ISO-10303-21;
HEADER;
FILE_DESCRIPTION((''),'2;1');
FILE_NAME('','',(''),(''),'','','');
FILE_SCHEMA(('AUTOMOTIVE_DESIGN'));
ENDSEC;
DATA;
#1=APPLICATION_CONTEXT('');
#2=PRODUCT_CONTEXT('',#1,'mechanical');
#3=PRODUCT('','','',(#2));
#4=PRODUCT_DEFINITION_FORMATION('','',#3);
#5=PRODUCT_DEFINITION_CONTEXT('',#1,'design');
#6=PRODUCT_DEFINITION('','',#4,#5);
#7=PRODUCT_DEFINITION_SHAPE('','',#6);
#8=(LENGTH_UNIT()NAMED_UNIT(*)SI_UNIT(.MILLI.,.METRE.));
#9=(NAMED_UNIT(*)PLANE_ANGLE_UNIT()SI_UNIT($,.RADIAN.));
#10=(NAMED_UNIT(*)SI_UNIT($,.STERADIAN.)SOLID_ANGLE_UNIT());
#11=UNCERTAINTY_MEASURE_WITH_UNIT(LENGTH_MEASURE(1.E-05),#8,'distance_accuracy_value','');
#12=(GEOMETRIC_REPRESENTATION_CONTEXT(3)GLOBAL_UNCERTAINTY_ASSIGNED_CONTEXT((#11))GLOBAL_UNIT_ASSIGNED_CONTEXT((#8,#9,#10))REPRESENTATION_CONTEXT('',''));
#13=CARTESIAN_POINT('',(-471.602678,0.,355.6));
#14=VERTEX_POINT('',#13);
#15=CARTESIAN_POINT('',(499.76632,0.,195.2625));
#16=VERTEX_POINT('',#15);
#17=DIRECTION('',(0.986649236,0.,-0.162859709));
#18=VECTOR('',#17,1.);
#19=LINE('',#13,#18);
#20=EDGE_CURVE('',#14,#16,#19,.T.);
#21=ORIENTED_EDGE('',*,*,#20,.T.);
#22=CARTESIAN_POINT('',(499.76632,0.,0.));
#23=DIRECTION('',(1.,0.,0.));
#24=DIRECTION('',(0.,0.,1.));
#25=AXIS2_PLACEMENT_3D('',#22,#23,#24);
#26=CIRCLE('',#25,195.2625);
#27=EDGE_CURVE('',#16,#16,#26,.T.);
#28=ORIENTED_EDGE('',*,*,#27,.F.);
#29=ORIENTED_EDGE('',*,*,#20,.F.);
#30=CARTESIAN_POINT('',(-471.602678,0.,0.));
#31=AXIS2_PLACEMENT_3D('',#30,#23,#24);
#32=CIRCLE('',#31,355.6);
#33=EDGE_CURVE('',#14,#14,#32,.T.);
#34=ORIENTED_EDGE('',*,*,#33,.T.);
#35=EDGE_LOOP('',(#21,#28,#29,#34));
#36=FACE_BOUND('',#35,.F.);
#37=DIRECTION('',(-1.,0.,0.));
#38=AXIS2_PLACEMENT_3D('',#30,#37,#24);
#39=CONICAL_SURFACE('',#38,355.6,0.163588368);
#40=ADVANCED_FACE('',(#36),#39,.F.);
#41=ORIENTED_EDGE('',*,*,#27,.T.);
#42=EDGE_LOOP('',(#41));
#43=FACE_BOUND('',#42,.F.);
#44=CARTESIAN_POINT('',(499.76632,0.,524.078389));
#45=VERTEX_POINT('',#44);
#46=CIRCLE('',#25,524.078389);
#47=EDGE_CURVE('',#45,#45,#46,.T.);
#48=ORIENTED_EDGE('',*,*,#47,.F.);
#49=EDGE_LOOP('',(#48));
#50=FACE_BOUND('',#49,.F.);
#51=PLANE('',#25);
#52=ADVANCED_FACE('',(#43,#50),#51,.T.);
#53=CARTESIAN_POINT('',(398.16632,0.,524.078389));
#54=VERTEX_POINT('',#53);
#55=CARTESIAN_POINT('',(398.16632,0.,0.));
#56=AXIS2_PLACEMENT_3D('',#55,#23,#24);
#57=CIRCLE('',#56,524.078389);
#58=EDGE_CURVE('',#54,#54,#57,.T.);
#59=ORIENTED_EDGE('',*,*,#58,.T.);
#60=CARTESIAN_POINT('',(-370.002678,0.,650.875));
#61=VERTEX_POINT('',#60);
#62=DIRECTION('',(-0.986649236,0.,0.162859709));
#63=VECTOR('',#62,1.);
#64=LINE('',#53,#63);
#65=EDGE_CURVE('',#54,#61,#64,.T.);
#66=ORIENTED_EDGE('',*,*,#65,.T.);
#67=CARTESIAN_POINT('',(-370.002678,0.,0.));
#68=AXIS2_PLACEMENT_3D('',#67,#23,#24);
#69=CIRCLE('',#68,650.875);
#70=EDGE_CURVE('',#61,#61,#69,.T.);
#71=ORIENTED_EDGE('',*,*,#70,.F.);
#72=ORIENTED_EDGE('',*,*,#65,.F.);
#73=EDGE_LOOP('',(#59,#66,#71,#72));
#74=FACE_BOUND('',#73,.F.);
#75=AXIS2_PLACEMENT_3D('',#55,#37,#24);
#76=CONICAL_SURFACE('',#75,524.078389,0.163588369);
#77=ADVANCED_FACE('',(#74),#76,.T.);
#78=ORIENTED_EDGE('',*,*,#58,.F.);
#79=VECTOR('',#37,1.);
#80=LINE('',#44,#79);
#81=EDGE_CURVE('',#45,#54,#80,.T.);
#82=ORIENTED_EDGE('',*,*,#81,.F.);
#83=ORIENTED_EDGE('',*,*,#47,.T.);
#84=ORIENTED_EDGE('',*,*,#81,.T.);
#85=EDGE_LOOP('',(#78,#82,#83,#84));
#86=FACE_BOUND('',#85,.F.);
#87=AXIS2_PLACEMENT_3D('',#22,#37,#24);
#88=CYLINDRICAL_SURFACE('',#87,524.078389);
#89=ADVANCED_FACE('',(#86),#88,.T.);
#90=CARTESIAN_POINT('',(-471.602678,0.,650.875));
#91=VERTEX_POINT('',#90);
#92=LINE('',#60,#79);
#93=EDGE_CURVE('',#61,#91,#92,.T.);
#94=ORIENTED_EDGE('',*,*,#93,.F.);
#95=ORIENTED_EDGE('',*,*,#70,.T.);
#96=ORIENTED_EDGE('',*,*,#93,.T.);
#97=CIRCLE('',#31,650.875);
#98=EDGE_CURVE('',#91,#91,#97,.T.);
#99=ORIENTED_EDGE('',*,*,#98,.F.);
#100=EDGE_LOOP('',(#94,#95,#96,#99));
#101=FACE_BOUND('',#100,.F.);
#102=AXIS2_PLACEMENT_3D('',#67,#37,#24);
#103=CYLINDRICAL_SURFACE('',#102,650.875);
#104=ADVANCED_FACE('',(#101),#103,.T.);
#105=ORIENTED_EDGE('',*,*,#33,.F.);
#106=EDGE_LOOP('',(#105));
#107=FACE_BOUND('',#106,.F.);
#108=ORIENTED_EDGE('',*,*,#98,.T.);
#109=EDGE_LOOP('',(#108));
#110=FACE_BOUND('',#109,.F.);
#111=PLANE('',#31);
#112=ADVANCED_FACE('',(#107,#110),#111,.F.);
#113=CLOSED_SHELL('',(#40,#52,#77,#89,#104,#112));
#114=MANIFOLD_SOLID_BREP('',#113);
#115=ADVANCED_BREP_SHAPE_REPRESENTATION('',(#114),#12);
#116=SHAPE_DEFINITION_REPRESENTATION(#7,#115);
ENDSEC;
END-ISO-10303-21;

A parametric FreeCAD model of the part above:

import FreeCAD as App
import Part
import Sketcher
Q = App.Units.Quantity

doc = App.newDocument("Part")
params = doc.addObject("Spreadsheet::Sheet", "Params")
for row, (alias, value) in enumerate([
    ("sketch1_width", "4 in"),
    ("sketch1_height", "11.625 in"),
    ("revolution_angle", "360 deg"),
], start=1):
    params.set(f"A{row}", alias)
    params.set(f"B{row}", "=" + value)
    params.setAlias(f"B{row}", alias)

body = doc.addObject("PartDesign::Body", "Body")

# Sketch on XZ plane
sketch1 = doc.addObject("Sketcher::SketchObject", "Sketch")
body.addObject(sketch1)
sketch1.AttachmentSupport = (doc.XZ_Plane, [""])
sketch1.MapMode = "FlatFace"
sketch1.addGeometry([
    Part.LineSegment(App.Vector(-472, 356, 0), App.Vector(500, 195, 0)),  # 0
    Part.LineSegment(App.Vector(500, 195, 0), App.Vector(500, 524, 0)),  # 1
    Part.LineSegment(App.Vector(500, 524, 0), App.Vector(398, 524, 0)),  # 2
    Part.LineSegment(App.Vector(398, 524, 0), App.Vector(-370, 651, 0)),  # 3
    Part.LineSegment(App.Vector(-370, 651, 0), App.Vector(-472, 651, 0)),  # 4
    Part.LineSegment(App.Vector(-472, 651, 0), App.Vector(-472, 356, 0)),  # 5
], False)
sketch1.addConstraint([
    Sketcher.Constraint("Coincident", 0, 2, 1, 1),
    Sketcher.Constraint("Coincident", 1, 2, 2, 1),
    Sketcher.Constraint("Coincident", 2, 2, 3, 1),
    Sketcher.Constraint("Coincident", 3, 2, 4, 1),
    Sketcher.Constraint("Coincident", 4, 2, 5, 1),
    Sketcher.Constraint("Coincident", 5, 2, 0, 1),
    Sketcher.Constraint("Vertical", 1),
    Sketcher.Constraint("Horizontal", 2),
    Sketcher.Constraint("Horizontal", 4),
    Sketcher.Constraint("Vertical", 5),
    Sketcher.Constraint("Parallel", 0, 3),
    Sketcher.Constraint("Equal", 2, 4),
    Sketcher.Constraint("DistanceX", 2, 2, 2, 1, Q("4 in")),
    Sketcher.Constraint("DistanceY", -1, 1, 5, 2, Q("14 in")),
    Sketcher.Constraint("DistanceY", 5, 2, 5, 1, Q("11.625 in")),
    Sketcher.Constraint("DistanceY", -1, 1, 0, 2, Q("7.6875 in")),
    Sketcher.Constraint("Distance", 0, 984.512998),
    Sketcher.Constraint("DistanceX", -1, 1, 0, 2, 499.76632),
])
sketch1.setExpression("Constraints[12]", "Params.sketch1_width")
sketch1.setExpression("Constraints[14]", "Params.sketch1_height")
revolution = doc.addObject("PartDesign::Revolution", "Revolution")
body.addObject(revolution)
revolution.Profile = sketch1
revolution.ReferenceAxis = (sketch1, ["H_Axis"])
revolution.setExpression("Angle", "Params.revolution_angle")

doc.recompute()
